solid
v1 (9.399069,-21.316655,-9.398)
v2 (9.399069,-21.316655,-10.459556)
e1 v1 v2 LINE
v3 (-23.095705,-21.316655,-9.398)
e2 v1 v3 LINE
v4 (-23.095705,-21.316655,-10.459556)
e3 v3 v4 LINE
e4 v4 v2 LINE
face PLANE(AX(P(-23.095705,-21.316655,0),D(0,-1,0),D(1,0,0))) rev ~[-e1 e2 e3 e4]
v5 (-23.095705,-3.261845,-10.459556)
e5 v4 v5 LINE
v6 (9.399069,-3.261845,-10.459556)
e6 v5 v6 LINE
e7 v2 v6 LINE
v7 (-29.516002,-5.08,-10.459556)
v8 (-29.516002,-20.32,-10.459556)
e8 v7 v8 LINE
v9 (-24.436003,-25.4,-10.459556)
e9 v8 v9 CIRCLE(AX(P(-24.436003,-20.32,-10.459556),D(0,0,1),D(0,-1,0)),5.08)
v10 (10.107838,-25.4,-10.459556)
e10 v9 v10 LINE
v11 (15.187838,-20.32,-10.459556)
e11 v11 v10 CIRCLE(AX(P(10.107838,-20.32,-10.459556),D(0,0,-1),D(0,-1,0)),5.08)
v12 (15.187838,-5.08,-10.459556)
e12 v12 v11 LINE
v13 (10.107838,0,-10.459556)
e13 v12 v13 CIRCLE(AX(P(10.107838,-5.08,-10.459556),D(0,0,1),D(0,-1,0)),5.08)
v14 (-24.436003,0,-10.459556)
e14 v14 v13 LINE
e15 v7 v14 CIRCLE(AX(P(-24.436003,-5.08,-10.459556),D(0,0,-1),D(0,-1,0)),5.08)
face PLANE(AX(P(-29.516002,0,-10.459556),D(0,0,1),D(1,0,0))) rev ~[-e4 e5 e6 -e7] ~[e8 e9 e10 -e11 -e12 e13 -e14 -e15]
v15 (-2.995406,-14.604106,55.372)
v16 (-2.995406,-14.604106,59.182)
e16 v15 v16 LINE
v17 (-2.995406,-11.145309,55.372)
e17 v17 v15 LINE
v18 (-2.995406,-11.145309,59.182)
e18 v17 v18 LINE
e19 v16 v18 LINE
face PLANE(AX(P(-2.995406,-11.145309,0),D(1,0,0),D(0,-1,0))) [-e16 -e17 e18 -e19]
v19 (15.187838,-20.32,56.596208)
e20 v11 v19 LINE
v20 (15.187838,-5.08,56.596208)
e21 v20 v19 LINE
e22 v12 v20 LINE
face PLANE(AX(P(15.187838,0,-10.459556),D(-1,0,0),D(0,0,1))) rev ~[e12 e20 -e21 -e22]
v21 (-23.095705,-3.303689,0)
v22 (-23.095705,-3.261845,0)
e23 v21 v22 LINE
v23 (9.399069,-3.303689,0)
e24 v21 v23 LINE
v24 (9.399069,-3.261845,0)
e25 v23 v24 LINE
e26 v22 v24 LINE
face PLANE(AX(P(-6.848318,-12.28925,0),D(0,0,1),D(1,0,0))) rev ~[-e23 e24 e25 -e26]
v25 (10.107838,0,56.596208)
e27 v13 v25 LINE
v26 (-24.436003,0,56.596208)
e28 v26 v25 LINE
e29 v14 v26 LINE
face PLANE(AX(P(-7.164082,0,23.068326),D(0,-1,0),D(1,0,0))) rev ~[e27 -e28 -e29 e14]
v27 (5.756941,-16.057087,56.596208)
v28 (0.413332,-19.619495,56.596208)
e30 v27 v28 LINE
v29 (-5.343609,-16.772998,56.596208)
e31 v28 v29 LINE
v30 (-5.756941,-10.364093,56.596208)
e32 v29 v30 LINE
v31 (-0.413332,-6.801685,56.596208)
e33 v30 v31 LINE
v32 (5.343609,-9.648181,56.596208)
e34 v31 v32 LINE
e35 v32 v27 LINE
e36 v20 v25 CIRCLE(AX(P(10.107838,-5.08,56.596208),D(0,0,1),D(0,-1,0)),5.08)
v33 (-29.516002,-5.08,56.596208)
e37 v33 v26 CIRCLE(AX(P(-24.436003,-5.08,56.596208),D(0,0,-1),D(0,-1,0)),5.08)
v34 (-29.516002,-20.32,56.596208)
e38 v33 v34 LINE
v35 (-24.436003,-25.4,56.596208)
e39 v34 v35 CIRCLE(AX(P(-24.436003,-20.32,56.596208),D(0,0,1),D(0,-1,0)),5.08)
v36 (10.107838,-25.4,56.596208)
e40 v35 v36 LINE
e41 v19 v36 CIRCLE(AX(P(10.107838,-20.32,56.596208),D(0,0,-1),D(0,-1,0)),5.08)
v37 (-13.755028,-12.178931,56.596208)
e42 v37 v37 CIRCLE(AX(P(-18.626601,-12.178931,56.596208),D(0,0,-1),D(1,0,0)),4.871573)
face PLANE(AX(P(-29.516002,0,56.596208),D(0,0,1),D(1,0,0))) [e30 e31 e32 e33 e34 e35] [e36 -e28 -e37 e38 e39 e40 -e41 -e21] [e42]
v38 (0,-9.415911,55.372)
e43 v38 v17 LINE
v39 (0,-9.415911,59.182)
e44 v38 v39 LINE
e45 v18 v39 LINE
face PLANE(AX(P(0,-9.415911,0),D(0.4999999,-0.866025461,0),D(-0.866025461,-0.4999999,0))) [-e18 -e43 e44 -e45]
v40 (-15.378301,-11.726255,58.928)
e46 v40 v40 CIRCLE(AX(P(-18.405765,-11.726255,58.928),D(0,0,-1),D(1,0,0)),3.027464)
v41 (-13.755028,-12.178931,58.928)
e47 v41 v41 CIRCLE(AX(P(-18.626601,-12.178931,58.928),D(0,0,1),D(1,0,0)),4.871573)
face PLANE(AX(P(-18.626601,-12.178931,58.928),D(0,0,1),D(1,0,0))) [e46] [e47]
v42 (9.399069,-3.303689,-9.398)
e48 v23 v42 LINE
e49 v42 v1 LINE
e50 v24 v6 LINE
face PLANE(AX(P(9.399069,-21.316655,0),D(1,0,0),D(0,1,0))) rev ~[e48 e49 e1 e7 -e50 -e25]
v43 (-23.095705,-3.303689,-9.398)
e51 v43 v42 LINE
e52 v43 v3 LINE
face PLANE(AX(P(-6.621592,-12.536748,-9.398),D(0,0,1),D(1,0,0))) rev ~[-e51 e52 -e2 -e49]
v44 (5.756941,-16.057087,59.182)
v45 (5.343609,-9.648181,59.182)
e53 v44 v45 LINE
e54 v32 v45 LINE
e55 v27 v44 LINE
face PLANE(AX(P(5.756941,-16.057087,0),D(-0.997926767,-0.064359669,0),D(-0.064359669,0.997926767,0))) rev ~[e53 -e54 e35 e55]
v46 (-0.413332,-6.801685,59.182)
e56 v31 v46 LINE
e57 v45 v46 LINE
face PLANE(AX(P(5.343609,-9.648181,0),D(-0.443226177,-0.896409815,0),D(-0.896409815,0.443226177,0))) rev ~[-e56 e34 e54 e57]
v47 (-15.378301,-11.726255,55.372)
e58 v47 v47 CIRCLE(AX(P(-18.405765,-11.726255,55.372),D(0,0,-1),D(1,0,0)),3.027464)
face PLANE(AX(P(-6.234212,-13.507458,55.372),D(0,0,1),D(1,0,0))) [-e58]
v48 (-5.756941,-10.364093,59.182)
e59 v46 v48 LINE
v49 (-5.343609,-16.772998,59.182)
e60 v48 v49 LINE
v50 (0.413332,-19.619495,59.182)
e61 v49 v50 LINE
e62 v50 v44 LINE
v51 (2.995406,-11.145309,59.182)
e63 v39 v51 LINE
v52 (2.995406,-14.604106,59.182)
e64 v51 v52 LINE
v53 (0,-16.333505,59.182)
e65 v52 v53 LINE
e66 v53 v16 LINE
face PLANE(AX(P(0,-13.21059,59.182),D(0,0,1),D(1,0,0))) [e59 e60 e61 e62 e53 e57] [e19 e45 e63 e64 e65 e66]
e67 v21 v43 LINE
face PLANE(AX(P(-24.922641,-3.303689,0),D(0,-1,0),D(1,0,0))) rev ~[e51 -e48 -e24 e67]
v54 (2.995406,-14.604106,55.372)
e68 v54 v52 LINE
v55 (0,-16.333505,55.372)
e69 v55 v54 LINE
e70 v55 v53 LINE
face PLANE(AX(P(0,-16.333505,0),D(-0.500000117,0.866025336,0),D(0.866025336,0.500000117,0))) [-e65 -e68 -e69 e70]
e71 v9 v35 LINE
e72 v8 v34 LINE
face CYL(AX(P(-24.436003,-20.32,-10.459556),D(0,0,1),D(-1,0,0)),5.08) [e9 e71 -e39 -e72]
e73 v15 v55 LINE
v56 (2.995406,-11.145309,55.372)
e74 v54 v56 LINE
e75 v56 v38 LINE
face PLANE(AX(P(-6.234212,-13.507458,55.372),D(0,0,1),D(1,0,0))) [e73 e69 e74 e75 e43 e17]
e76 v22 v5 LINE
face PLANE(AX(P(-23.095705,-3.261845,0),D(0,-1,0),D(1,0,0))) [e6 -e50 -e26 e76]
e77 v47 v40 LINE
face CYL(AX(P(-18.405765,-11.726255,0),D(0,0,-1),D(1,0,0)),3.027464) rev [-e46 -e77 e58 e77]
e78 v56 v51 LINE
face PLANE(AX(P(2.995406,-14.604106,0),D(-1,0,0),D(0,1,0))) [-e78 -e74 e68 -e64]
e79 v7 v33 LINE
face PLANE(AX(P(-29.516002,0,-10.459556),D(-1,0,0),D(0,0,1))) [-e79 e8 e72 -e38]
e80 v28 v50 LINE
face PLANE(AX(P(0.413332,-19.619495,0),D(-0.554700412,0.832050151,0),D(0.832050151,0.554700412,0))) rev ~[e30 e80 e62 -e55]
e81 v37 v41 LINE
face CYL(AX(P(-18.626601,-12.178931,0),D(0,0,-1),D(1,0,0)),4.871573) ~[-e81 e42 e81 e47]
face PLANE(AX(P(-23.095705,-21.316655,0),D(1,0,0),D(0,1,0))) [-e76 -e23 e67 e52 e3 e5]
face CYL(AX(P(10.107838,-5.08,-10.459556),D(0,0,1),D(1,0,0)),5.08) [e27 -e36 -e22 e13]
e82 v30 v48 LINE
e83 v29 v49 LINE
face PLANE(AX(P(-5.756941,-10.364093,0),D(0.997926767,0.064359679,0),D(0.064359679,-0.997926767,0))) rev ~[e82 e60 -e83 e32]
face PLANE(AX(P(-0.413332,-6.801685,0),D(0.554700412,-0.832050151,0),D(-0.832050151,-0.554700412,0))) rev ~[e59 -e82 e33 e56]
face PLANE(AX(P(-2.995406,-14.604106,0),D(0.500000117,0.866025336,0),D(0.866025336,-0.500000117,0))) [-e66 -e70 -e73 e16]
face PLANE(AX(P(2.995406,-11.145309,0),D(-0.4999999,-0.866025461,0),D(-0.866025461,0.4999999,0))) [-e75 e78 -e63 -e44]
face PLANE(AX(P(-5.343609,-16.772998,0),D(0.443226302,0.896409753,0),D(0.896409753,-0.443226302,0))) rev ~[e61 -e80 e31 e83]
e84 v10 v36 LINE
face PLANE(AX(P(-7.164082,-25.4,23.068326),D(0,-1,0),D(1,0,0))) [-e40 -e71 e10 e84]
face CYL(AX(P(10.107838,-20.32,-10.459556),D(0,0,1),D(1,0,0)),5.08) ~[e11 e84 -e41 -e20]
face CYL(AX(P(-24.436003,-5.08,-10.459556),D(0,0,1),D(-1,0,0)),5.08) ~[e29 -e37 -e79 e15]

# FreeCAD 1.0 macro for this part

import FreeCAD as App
import Part
import Sketcher
from FreeCAD import Vector
Q = App.Units.Quantity


def edges_at(feature, points):
    """Names of the edges that pass closest to the given points."""
    edges = feature.Shape.Edges
    near = lambda p: min(range(len(edges)), key=lambda i: edges[i].distToShape(Part.Vertex(*p))[0])
    return sorted({f"Edge{near(p) + 1}" for p in points})


def add_polygon(sketch, points):
    """Adds a closed chain of lines whose ends are joined by coincident constraints."""
    first, n = sketch.GeometryCount, len(points)
    for a, b in zip(points, points[1:] + points[:1]):
        sketch.addGeometry(Part.LineSegment(App.Vector(*a, 0), App.Vector(*b, 0)), False)
    for i in range(n):
        sketch.addConstraint(Sketcher.Constraint("Coincident", first + i, 2, first + (i + 1) % n, 1))

doc = App.newDocument("Part")
body = doc.addObject("PartDesign::Body", "Body")

sketch1 = body.newObject("Sketcher::SketchObject", "Sketch")
sketch1.AttachmentSupport = (doc.getObject("XZ_Plane"), [""])
sketch1.MapMode = "FlatFace"
add_polygon(sketch1, [(-29.516002, 56.596208), (-29.516002, -10.459556), (15.187838, -10.459556), (15.187838, 56.596208)])
sketch1.addConstraint([
    Sketcher.Constraint("Vertical", 0),
    Sketcher.Constraint("Horizontal", 1),
    Sketcher.Constraint("Vertical", 2),
    Sketcher.Constraint("Horizontal", 3),
    Sketcher.Constraint("DistanceX", 1, 1, 1, 2, 44.703841),
    Sketcher.Constraint("DistanceY", 0, 2, 0, 1, 67.055764),
    Sketcher.Constraint("DistanceX", -1, 1, 1, 2, 15.187838),
    Sketcher.Constraint("DistanceY", 0, 2, -1, 1, 10.459556),
])
pad1 = body.newObject("PartDesign::Pad", "Pad")
pad1.Profile = sketch1
pad1.Length = Q("1 in")
doc.recompute()

fillet = body.newObject("PartDesign::Fillet", "Fillet")
fillet.Base = (pad1, edges_at(pad1, [
    (-29.516, -25.4, 23.068),
    (15.188, -25.4, 23.068),
    (15.188, 0, 23.068),
    (-29.516, 0, 23.068),
]))
fillet.Radius = Q("0.2 in")

sketch2 = body.newObject("Sketcher::SketchObject", "Sketch001")
sketch2.AttachmentSupport = (doc.getObject("XY_Plane"), [""])
sketch2.MapMode = "FlatFace"
sketch2.addGeometry(Part.Circle(Vector(-18.626601, -12.178931, 0), Vector(0, 0, 1), 4.871573), False)
sketch2.addConstraint([
    Sketcher.Constraint("Diameter", 0, 9.743146),
    Sketcher.Constraint("DistanceX", 0, 3, -1, 1, 18.626601),
    Sketcher.Constraint("DistanceY", 0, 3, -1, 1, 12.178931),
])
pad2 = body.newObject("PartDesign::Pad", "Pad001")
pad2.Profile = sketch2
pad2.Length = Q("2.32 in")

sketch3 = body.newObject("Sketcher::SketchObject", "Sketch002")
sketch3.AttachmentSupport = (doc.getObject("XY_Plane"), [""])
sketch3.MapMode = "FlatFace"
add_polygon(sketch3, [(-5.756941, -10.364093), (-5.343609, -16.772998), (0.413332, -19.619495), (5.756941, -16.057087), (5.343609, -9.648181), (-0.413332, -6.801685)])
sketch3.addConstraint([
    Sketcher.Constraint("Parallel", 0, 3),
    Sketcher.Constraint("Parallel", 1, 4),
    Sketcher.Constraint("Parallel", 2, 5),
    Sketcher.Constraint("Equal", 0, 1),
    Sketcher.Constraint("Equal", 1, 2),
    Sketcher.Constraint("Equal", 2, 3),
    Sketcher.Constraint("DistanceY", 0, 2, -1, 1, 16.772998),
    Sketcher.Constraint("Distance", 0, 6.42222),
    Sketcher.Constraint("DistanceX", 0, 2, -1, 1, 5.343609),
    Sketcher.Constraint("DistanceX", -1, 1, 2, 2, 5.756941),
    Sketcher.Constraint("DistanceX", -1, 1, 3, 2, 5.343609),
    Sketcher.Constraint("DistanceY", 3, 2, -1, 1, 9.648181),
])
pad3 = body.newObject("PartDesign::Pad", "Pad002")
pad3.Profile = sketch3
pad3.Length = Q("2.33 in")

sketch4 = body.newObject("Sketcher::SketchObject", "Sketch003")
sketch4.AttachmentSupport = (doc.getObject("XY_Plane"), [""])
sketch4.MapMode = "FlatFace"
sketch4.addGeometry(Part.Circle(Vector(-18.405765, -11.726255, 0), Vector(0, 0, 1), 3.027464), False)
sketch4.addConstraint([
    Sketcher.Constraint("Diameter", 0, 6.054928),
    Sketcher.Constraint("DistanceX", 0, 3, -1, 1, 18.405765),
    Sketcher.Constraint("DistanceY", 0, 3, -1, 1, 11.726255),
])
pocket1 = body.newObject("PartDesign::Pocket", "Pocket")
pocket1.Profile = sketch4
pocket1.Length = Q("2.75 in")
pocket1.Reversed = True

sketch5 = body.newObject("Sketcher::SketchObject", "Sketch004")
sketch5.AttachmentSupport = (doc.getObject("XY_Plane"), [""])
sketch5.MapMode = "FlatFace"
add_polygon(sketch5, [(2.995406, -11.145309), (0, -9.415911), (-2.995406, -11.145309), (-2.995406, -14.604106), (0, -16.333505), (2.995406, -14.604106)])
sketch5.addConstraint([
    Sketcher.Constraint("Vertical", 2),
    Sketcher.Constraint("Vertical", 5),
    Sketcher.Constraint("Symmetric", 2, 2, 4, 2, -2),
    Sketcher.Constraint("PointOnObject", 0, 2, -2),
    Sketcher.Constraint("PointOnObject", 3, 2, -2),
    Sketcher.Constraint("Parallel", 0, 3),
    Sketcher.Constraint("Parallel", 1, 4),
    Sketcher.Constraint("Angle", 0, Q("150.000007 deg")),
    Sketcher.Constraint("DistanceY", 3, 2, 2, 2, 1.729399),
    Sketcher.Constraint("DistanceY", 2, 2, 2, 1, 3.458797),
    Sketcher.Constraint("DistanceY", 0, 2, -1, 1, 9.415911),
])
pocket2 = body.newObject("PartDesign::Pocket", "Pocket001")
pocket2.Profile = sketch5
pocket2.Length = Q("2.49 in")
pocket2.Reversed = True

sketch6 = body.newObject("Sketcher::SketchObject", "Sketch005")
sketch6.AttachmentSupport = (doc.getObject("XY_Plane"), [""])
sketch6.MapMode = "FlatFace"
add_polygon(sketch6, [(-22.561908, -5.78891), (-22.561908, -21.226006), (10.093484, -21.226006), (10.093484, -5.78891)])
sketch6.addConstraint([
    Sketcher.Constraint("Vertical", 0),
    Sketcher.Constraint("Horizontal", 1),
    Sketcher.Constraint("Vertical", 2),
    Sketcher.Constraint("Horizontal", 3),
    Sketcher.Constraint("DistanceX", 1, 1, 1, 2, 32.655392),
    Sketcher.Constraint("DistanceY", 0, 2, 0, 1, 15.437096),
    Sketcher.Constraint("DistanceY", 2, 2, -1, 1, 5.78891),
    Sketcher.Constraint("DistanceX", 0, 2, -1, 1, 22.561908),
])
pad4 = body.newObject("PartDesign::Pad", "Pad003")
pad4.Profile = sketch6
pad4.Length = Q("2.18 in")

sketch7 = body.newObject("Sketcher::SketchObject", "Sketch006")
sketch7.AttachmentSupport = (doc.getObject("XY_Plane"), [""])
sketch7.MapMode = "FlatFace"
add_polygon(sketch7, [(-23.095705, -3.261845), (-23.095705, -21.316655), (9.399069, -21.316655), (9.399069, -3.261845)])
sketch7.addConstraint([
    Sketcher.Constraint("Vertical", 0),
    Sketcher.Constraint("Horizontal", 1),
    Sketcher.Constraint("Vertical", 2),
    Sketcher.Constraint("Horizontal", 3),
    Sketcher.Constraint("DistanceY", 0, 2, 0, 1, 18.05481),
    Sketcher.Constraint("DistanceX", 1, 1, 1, 2, 32.494774),
    Sketcher.Constraint("DistanceX", -1, 1, 1, 2, 9.399069),
    Sketcher.Constraint("DistanceY", 0, 2, -1, 1, 21.316655),
])
pocket3 = body.newObject("PartDesign::Pocket", "Pocket002")
pocket3.Profile = sketch7
pocket3.Length = Q("0.48 in")

sketch8 = body.newObject("Sketcher::SketchObject", "Sketch007")
sketch8.AttachmentSupport = (doc.getObject("XY_Plane"), [""])
sketch8.MapMode = "FlatFace"
add_polygon(sketch8, [(-24.922641, -3.303689), (-24.922641, -21.769807), (11.679457, -21.769807), (11.679457, -3.303689)])
sketch8.addConstraint([
    Sketcher.Constraint("Vertical", 0),
    Sketcher.Constraint("Horizontal", 1),
    Sketcher.Constraint("Vertical", 2),
    Sketcher.Constraint("Horizontal", 3),
    Sketcher.Constraint("DistanceX", 1, 1, 1, 2, 36.602098),
    Sketcher.Constraint("DistanceY", 0, 2, 0, 1, 18.466117),
    Sketcher.Constraint("DistanceX", 0, 2, -1, 1, 24.922641),
    Sketcher.Constraint("DistanceY", 2, 2, -1, 1, 3.303689),
])
pad5 = body.newObject("PartDesign::Pad", "Pad004")
pad5.Profile = sketch8
pad5.Length = Q("0.37 in")
pad5.Reversed = True

doc.recompute()
